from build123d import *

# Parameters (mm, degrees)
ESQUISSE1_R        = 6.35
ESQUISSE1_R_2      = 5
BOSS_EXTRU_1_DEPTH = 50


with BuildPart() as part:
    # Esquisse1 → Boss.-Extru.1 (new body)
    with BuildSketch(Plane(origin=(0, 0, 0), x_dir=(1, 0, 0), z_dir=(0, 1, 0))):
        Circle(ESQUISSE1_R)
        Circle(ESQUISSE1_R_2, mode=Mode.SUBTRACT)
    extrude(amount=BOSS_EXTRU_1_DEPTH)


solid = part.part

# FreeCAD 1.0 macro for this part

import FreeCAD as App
import Part
import Sketcher

V = App.Vector
Q = App.Units.Quantity

doc = App.newDocument("Part")
body = doc.addObject("PartDesign::Body", "Body")

sketch1 = doc.addObject("Sketcher::SketchObject", "Sketch")
body.addObject(sketch1)
sketch1.AttachmentSupport = (doc.XZ_Plane, [""])
sketch1.MapMode = "FlatFace"
sketch1.addGeometry(Part.Circle(V(0, 0, 0), V(0, 0, 1), 6), False)
sketch1.addGeometry(Part.Circle(V(0, 0, 0), V(0, 0, 1), 5), False)
sketch1.addConstraint(Sketcher.Constraint("Coincident", 0, 3, -1, 1))
sketch1.addConstraint(Sketcher.Constraint("Coincident", 1, 3, -1, 1))
sketch1.addConstraint(Sketcher.Constraint("Diameter", 1, Q("10 mm")))
sketch1.addConstraint(Sketcher.Constraint("Diameter", 0, Q("12.7 mm")))
pad1 = doc.addObject("PartDesign::Pad", "Pad")
body.addObject(pad1)
pad1.Profile = sketch1
pad1.Length = 50
pad1.Reversed = True

doc.recompute()
